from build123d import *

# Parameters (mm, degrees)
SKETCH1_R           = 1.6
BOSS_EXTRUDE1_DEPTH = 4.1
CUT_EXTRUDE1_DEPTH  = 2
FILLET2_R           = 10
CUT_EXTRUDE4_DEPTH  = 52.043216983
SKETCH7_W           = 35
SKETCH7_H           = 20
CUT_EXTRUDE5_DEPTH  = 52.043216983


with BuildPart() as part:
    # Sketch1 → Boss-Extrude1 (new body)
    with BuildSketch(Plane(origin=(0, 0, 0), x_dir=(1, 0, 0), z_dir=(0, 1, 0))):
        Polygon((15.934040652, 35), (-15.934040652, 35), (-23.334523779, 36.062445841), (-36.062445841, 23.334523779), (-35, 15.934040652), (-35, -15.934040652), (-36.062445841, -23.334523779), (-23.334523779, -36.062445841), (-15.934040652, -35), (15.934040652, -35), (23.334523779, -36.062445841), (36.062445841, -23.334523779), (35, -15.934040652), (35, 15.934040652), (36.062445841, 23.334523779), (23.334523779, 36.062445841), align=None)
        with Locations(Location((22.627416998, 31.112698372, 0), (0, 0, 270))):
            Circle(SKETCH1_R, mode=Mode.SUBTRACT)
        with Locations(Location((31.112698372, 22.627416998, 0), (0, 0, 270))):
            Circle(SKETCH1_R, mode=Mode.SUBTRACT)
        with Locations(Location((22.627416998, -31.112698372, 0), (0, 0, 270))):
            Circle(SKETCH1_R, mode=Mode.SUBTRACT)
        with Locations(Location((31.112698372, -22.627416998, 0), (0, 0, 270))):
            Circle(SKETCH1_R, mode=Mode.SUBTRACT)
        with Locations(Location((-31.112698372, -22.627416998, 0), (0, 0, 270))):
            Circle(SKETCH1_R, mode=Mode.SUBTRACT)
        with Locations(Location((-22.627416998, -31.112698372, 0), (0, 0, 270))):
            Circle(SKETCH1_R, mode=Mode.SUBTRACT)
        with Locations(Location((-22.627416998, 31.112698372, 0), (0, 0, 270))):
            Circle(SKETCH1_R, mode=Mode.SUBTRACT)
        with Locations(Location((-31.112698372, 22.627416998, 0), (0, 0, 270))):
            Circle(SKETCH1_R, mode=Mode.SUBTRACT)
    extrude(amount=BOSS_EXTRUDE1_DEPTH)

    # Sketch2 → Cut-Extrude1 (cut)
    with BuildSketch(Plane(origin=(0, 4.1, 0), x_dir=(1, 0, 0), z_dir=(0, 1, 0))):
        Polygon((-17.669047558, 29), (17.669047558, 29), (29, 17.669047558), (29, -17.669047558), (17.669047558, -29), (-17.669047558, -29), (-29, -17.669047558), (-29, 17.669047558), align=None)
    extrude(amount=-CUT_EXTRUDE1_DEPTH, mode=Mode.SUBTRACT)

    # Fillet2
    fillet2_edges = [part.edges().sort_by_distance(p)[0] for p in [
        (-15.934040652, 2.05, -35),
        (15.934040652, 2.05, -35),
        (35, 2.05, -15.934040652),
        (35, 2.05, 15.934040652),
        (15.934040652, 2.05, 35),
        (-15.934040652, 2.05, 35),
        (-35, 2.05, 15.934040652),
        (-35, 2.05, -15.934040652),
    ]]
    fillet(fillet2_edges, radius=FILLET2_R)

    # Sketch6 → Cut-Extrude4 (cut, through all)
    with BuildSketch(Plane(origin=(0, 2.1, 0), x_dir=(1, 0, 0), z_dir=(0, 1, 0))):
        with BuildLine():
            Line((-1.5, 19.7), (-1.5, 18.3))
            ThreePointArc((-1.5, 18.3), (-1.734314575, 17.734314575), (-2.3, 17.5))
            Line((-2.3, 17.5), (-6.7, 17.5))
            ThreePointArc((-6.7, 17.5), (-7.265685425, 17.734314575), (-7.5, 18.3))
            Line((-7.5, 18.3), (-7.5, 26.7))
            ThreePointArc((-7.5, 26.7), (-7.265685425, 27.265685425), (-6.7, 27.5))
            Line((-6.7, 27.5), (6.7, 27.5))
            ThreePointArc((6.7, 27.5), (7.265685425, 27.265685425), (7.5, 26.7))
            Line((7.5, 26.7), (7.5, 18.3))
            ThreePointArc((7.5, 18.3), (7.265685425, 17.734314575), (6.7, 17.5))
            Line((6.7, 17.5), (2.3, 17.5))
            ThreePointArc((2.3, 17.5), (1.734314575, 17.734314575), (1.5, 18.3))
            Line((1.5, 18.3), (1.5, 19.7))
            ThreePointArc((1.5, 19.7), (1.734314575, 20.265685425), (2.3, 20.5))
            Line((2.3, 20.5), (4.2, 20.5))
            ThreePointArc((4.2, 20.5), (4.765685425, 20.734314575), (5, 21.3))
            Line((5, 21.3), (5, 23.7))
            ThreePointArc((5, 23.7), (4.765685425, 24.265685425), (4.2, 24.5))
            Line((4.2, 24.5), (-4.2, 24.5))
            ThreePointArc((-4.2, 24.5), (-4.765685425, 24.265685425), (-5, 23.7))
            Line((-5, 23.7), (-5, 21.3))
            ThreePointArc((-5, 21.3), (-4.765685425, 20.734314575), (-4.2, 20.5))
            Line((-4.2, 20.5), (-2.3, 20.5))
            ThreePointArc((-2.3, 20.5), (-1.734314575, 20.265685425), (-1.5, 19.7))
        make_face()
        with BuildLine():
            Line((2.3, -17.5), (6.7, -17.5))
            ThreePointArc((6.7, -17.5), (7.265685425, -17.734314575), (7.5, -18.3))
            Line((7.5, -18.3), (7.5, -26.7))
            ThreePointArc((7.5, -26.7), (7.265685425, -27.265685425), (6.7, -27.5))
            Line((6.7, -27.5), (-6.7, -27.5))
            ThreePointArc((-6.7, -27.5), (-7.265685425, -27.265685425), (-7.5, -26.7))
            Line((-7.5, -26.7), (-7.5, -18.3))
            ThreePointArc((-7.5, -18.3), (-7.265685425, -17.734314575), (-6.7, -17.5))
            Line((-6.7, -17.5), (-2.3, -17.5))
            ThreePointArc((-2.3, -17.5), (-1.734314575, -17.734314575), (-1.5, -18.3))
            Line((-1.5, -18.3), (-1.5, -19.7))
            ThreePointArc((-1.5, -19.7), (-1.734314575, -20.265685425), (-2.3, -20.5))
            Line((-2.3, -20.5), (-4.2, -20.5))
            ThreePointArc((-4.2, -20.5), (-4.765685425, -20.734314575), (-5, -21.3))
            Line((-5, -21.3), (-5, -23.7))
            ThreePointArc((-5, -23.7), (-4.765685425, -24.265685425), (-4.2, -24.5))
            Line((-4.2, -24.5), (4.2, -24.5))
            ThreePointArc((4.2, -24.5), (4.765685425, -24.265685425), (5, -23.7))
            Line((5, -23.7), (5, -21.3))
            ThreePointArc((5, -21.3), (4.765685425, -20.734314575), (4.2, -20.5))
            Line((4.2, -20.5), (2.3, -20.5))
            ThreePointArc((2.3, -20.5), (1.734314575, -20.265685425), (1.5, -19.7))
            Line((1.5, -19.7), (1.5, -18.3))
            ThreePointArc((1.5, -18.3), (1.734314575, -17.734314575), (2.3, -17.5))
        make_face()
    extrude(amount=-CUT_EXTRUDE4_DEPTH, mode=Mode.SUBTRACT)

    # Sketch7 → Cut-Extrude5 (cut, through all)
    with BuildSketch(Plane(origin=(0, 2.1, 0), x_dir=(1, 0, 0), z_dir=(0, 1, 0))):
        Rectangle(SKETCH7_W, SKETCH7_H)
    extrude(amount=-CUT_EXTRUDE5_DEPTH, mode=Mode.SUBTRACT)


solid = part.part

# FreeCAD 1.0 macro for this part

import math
import FreeCAD as App
import Part
import Sketcher
from FreeCAD import Vector


def edges_at(feature, points):
    """Names of the edges that pass closest to the given points."""
    edges = feature.Shape.Edges
    near = lambda p: min(range(len(edges)), key=lambda i: edges[i].distToShape(Part.Vertex(*p))[0])
    return sorted({f"Edge{near(p) + 1}" for p in points})


def add_polygon(sketch, points):
    """Adds a closed chain of lines whose ends are joined by coincident constraints."""
    first, n = sketch.GeometryCount, len(points)
    for a, b in zip(points, points[1:] + points[:1]):
        sketch.addGeometry(Part.LineSegment(App.Vector(*a, 0), App.Vector(*b, 0)), False)
    for i in range(n):
        sketch.addConstraint(Sketcher.Constraint("Coincident", first + i, 2, first + (i + 1) % n, 1))

doc = App.newDocument("Part")
params = doc.addObject("Spreadsheet::Sheet", "Params")
for row, (alias, value) in enumerate([
    ("sketch1_diameter", "3.2 mm"),
    ("sketch1_length", "18 mm"),
    ("pad1_length", "4.1 mm"),
    ("pocket1_length", "2 mm"),
    ("fillet_radius", "10 mm"),
    ("sketch3_radius", "0.8 mm"),
    ("sketch3_width", "1.9 mm"),
    ("sketch3_width2", "8.4 mm"),
    ("sketch3_width3", "4.4 mm"),
    ("sketch3_height", "1.4 mm"),
    ("sketch4_width", "35 mm"),
    ("sketch4_height", "20 mm"),
], start=1):
    params.set(f"A{row}", alias)
    params.set(f"B{row}", "=" + value)
    params.setAlias(f"B{row}", alias)

body = doc.addObject("PartDesign::Body", "Body")

sketch1 = doc.addObject("Sketcher::SketchObject", "Sketch")
body.addObject(sketch1)
sketch1.AttachmentSupport = (doc.XZ_Plane, [""])
sketch1.MapMode = "FlatFace"
add_polygon(sketch1, [(15.9, -35), (-15.9, -35), (-23.3, -36.1), (-36.1, -23.3), (-35, -15.9), (-35, 15.9), (-36.1, 23.3), (-23.3, 36.1), (-15.9, 35), (15.9, 35), (23.3, 36.1), (36.1, 23.3), (35, 15.9), (35, -15.9), (36.1, -23.3), (23.3, -36.1)])
sketch1.addGeometry(Part.Circle(Vector(-22.6, 31.1, 0), Vector(0, 0, 1), 1.6), False)
sketch1.addGeometry(Part.Circle(Vector(-31.1, 22.6, 0), Vector(0, 0, 1), 1.6), False)
sketch1.addGeometry(Part.Circle(Vector(22.6, 31.1, 0), Vector(0, 0, 1), 1.6), False)
sketch1.addGeometry(Part.Circle(Vector(31.1, 22.6, 0), Vector(0, 0, 1), 1.6), False)
sketch1.addGeometry(Part.Circle(Vector(-31.1, -22.6, 0), Vector(0, 0, 1), 1.6), False)
sketch1.addGeometry(Part.Circle(Vector(-22.6, -31.1, 0), Vector(0, 0, 1), 1.6), False)
sketch1.addGeometry(Part.Circle(Vector(31.1, -22.6, 0), Vector(0, 0, 1), 1.6), False)
sketch1.addGeometry(Part.Circle(Vector(22.6, -31.1, 0), Vector(0, 0, 1), 1.6), False)
sketch1.addConstraint([
    Sketcher.Constraint("Horizontal", 0),
    Sketcher.Constraint("Vertical", 4),
    Sketcher.Constraint("Horizontal", 8),
    Sketcher.Constraint("Vertical", 12),
    Sketcher.Constraint("Equal", 16, 17),
    Sketcher.Constraint("Equal", 17, 18),
    Sketcher.Constraint("Equal", 18, 19),
    Sketcher.Constraint("Equal", 19, 20),
    Sketcher.Constraint("Equal", 20, 21),
    Sketcher.Constraint("Equal", 21, 22),
    Sketcher.Constraint("Equal", 22, 23),
    Sketcher.Constraint("Symmetric", 19, 3, 20, 3, -1, 1),
    Sketcher.Constraint("Symmetric", 18, 3, 21, 3, -1, 1),
    Sketcher.Constraint("Symmetric", 17, 3, 22, 3, -1, 1),
    Sketcher.Constraint("Symmetric", 16, 3, 23, 3, -1, 1),
    Sketcher.Constraint("Symmetric", 0, 2, 8, 2, -1, 1),
    Sketcher.Constraint("Symmetric", 1, 2, 9, 2, -1, 1),
    Sketcher.Constraint("Symmetric", 2, 2, 10, 2, -1, 1),
    Sketcher.Constraint("Symmetric", 3, 2, 11, 2, -1, 1),
    Sketcher.Constraint("Symmetric", 5, 2, 13, 2, -1, 1),
    Sketcher.Constraint("Symmetric", 6, 2, 14, 2, -1, 1),
    Sketcher.Constraint("Symmetric", 16, 3, 18, 3, -2),
    Sketcher.Constraint("Symmetric", 17, 3, 19, 3, -2),
    Sketcher.Constraint("Symmetric", 6, 2, 9, 2, -2),
    Sketcher.Constraint("Symmetric", 5, 2, 10, 2, -2),
    Sketcher.Constraint("Perpendicular", 1, 5),
    Sketcher.Constraint("Perpendicular", 2, 6),
    Sketcher.Constraint("Perpendicular", 3, 7),
    Sketcher.Constraint("Perpendicular", 9, 13),
    Sketcher.Constraint("Perpendicular", 11, 15),
    Sketcher.Constraint("Horizontal", 4, 2, 11, 2),
    Sketcher.Constraint("Equal", 8, 4),
    Sketcher.Constraint("Equal", 1, 3),
    Sketcher.Constraint("Diameter", 16, 3.2),
    Sketcher.Constraint("Distance", 2, 18.0),
    Sketcher.Constraint("DistanceY", 0, 2, -1, 1, 35.0),
    Sketcher.Constraint("DistanceX", 0, 2, 0, 1, 31.868081),
    Sketcher.Constraint("DistanceY", -1, 1, 16, 3, 31.112698),
    Sketcher.Constraint("DistanceX", 17, 3, -1, 1, 31.112698),
    Sketcher.Constraint("Distance", 1, 7.476359),
    Sketcher.Constraint("DistanceX", 17, 3, 16, 3, 8.485281),
    Sketcher.Constraint("DistanceY", 17, 3, 16, 3, 8.485281),
])
sketch1.setExpression("Constraints[49]", "Params.sketch1_diameter")
sketch1.setExpression("Constraints[50]", "Params.sketch1_length")
pad1 = doc.addObject("PartDesign::Pad", "Pad")
body.addObject(pad1)
pad1.Profile = sketch1
pad1.setExpression("Length", "Params.pad1_length")
pad1.Reversed = True

sketch2 = doc.addObject("Sketcher::SketchObject", "Sketch001")
body.addObject(sketch2)
sketch2.AttachmentSupport = (doc.XZ_Plane, [""])
sketch2.MapMode = "FlatFace"
sketch2.AttachmentOffset = App.Placement(Vector(0, 0, -4.1), App.Rotation())
add_polygon(sketch2, [(18, -29), (-18, -29), (-29, -18), (-29, 18), (-18, 29), (18, 29), (29, 18), (29, -18)])
sketch2.addConstraint([
    Sketcher.Constraint("Horizontal", 0),
    Sketcher.Constraint("Vertical", 2),
    Sketcher.Constraint("Horizontal", 4),
    Sketcher.Constraint("Vertical", 6),
    Sketcher.Constraint("Symmetric", 0, 2, 4, 2, -1, 1),
    Sketcher.Constraint("Symmetric", 1, 2, 5, 2, -1, 1),
    Sketcher.Constraint("Perpendicular", 1, 3),
    Sketcher.Constraint("Perpendicular", 5, 7),
    Sketcher.Constraint("Horizontal", 2, 2, 5, 2),
    Sketcher.Constraint("Horizontal", 1, 2, 6, 2),
    Sketcher.Constraint("Vertical", 0, 2, 3, 2),
    Sketcher.Constraint("Equal", 4, 2),
    Sketcher.Constraint("DistanceY", 0, 2, -1, 1, 29.0),
    Sketcher.Constraint("DistanceX", 0, 2, 0, 1, 35.338095),
])
pocket1 = doc.addObject("PartDesign::Pocket", "Pocket")
body.addObject(pocket1)
pocket1.Profile = sketch2
pocket1.setExpression("Length", "Params.pocket1_length")
pocket1.Reversed = True
doc.recompute()

fillet = doc.addObject("PartDesign::Fillet", "Fillet")
body.addObject(fillet)
fillet.Base = (pocket1, edges_at(pocket1, [
    (-15.934, 2.05, -35),
    (15.934, 2.05, -35),
    (35, 2.05, -15.934),
    (35, 2.05, 15.934),
    (15.934, 2.05, 35),
    (-15.934, 2.05, 35),
    (-35, 2.05, 15.934),
    (-35, 2.05, -15.934),
]))
fillet.setExpression("Radius", "Params.fillet_radius")

sketch3 = doc.addObject("Sketcher::SketchObject", "Sketch002")
body.addObject(sketch3)
sketch3.AttachmentSupport = (doc.XZ_Plane, [""])
sketch3.MapMode = "FlatFace"
sketch3.AttachmentOffset = App.Placement(Vector(0, 0, -2.1), App.Rotation())
sketch3.addGeometry([
    Part.LineSegment(Vector(-1.5, -18.3, 0), Vector(-1.5, -19.7, 0)),
    Part.ArcOfCircle(Part.Circle(Vector(-2.3, -19.7, 0), Vector(0, 0, 1), 0.8), math.radians(-90), math.radians(0)),
    Part.LineSegment(Vector(-2.3, -20.5, 0), Vector(-4.2, -20.5, 0)),
    Part.ArcOfCircle(Part.Circle(Vector(-4.2, -21.3, 0), Vector(0, 0, 1), 0.8), math.radians(90), math.radians(180)),
    Part.LineSegment(Vector(-5, -21.3, 0), Vector(-5, -23.7, 0)),
    Part.ArcOfCircle(Part.Circle(Vector(-4.2, -23.7, 0), Vector(0, 0, 1), 0.8), math.radians(180), math.radians(270)),
    Part.LineSegment(Vector(-4.2, -24.5, 0), Vector(4.2, -24.5, 0)),
    Part.ArcOfCircle(Part.Circle(Vector(4.2, -23.7, 0), Vector(0, 0, 1), 0.8), math.radians(-90), math.radians(0)),
    Part.LineSegment(Vector(5, -23.7, 0), Vector(5, -21.3, 0)),
    Part.ArcOfCircle(Part.Circle(Vector(4.2, -21.3, 0), Vector(0, 0, 1), 0.8), math.radians(0), math.radians(90)),
    Part.LineSegment(Vector(4.2, -20.5, 0), Vector(2.3, -20.5, 0)),
    Part.ArcOfCircle(Part.Circle(Vector(2.3, -19.7, 0), Vector(0, 0, 1), 0.8), math.radians(180), math.radians(270)),
    Part.LineSegment(Vector(1.5, -19.7, 0), Vector(1.5, -18.3, 0)),
    Part.ArcOfCircle(Part.Circle(Vector(2.3, -18.3, 0), Vector(0, 0, 1), 0.8), math.radians(90), math.radians(180)),
    Part.LineSegment(Vector(2.3, -17.5, 0), Vector(6.7, -17.5, 0)),
    Part.ArcOfCircle(Part.Circle(Vector(6.7, -18.3, 0), Vector(0, 0, 1), 0.8), math.radians(0), math.radians(90)),
    Part.LineSegment(Vector(7.5, -18.3, 0), Vector(7.5, -26.7, 0)),
    Part.ArcOfCircle(Part.Circle(Vector(6.7, -26.7, 0), Vector(0, 0, 1), 0.8), math.radians(-90), math.radians(0)),
    Part.LineSegment(Vector(6.7, -27.5, 0), Vector(-6.7, -27.5, 0)),
    Part.ArcOfCircle(Part.Circle(Vector(-6.7, -26.7, 0), Vector(0, 0, 1), 0.8), math.radians(180), math.radians(270)),
    Part.LineSegment(Vector(-7.5, -26.7, 0), Vector(-7.5, -18.3, 0)),
    Part.ArcOfCircle(Part.Circle(Vector(-6.7, -18.3, 0), Vector(0, 0, 1), 0.8), math.radians(90), math.radians(180)),
    Part.LineSegment(Vector(-6.7, -17.5, 0), Vector(-2.3, -17.5, 0)),
    Part.ArcOfCircle(Part.Circle(Vector(-2.3, -18.3, 0), Vector(0, 0, 1), 0.8), math.radians(0), math.radians(90)),
    Part.LineSegment(Vector(6.7, 17.5, 0), Vector(2.3, 17.5, 0)),
    Part.ArcOfCircle(Part.Circle(Vector(2.3, 18.3, 0), Vector(0, 0, 1), 0.8), math.radians(180), math.radians(270)),
    Part.LineSegment(Vector(1.5, 18.3, 0), Vector(1.5, 19.7, 0)),
    Part.ArcOfCircle(Part.Circle(Vector(2.3, 19.7, 0), Vector(0, 0, 1), 0.8), math.radians(90), math.radians(180)),
    Part.LineSegment(Vector(2.3, 20.5, 0), Vector(4.2, 20.5, 0)),
    Part.ArcOfCircle(Part.Circle(Vector(4.2, 21.3, 0), Vector(0, 0, 1), 0.8), math.radians(-90), math.radians(0)),
    Part.LineSegment(Vector(5, 21.3, 0), Vector(5, 23.7, 0)),
    Part.ArcOfCircle(Part.Circle(Vector(4.2, 23.7, 0), Vector(0, 0, 1), 0.8), math.radians(0), math.radians(90)),
    Part.LineSegment(Vector(4.2, 24.5, 0), Vector(-4.2, 24.5, 0)),
    Part.ArcOfCircle(Part.Circle(Vector(-4.2, 23.7, 0), Vector(0, 0, 1), 0.8), math.radians(90), math.radians(180)),
    Part.LineSegment(Vector(-5, 23.7, 0), Vector(-5, 21.3, 0)),
    Part.ArcOfCircle(Part.Circle(Vector(-4.2, 21.3, 0), Vector(0, 0, 1), 0.8), math.radians(180), math.radians(270)),
    Part.LineSegment(Vector(-4.2, 20.5, 0), Vector(-2.3, 20.5, 0)),
    Part.ArcOfCircle(Part.Circle(Vector(-2.3, 19.7, 0), Vector(0, 0, 1), 0.8), math.radians(0), math.radians(90)),
    Part.LineSegment(Vector(-1.5, 19.7, 0), Vector(-1.5, 18.3, 0)),
    Part.ArcOfCircle(Part.Circle(Vector(-2.3, 18.3, 0), Vector(0, 0, 1), 0.8), math.radians(-90), math.radians(0)),
    Part.LineSegment(Vector(-2.3, 17.5, 0), Vector(-6.7, 17.5, 0)),
    Part.ArcOfCircle(Part.Circle(Vector(-6.7, 18.3, 0), Vector(0, 0, 1), 0.8), math.radians(180), math.radians(270)),
    Part.LineSegment(Vector(-7.5, 18.3, 0), Vector(-7.5, 26.7, 0)),
    Part.ArcOfCircle(Part.Circle(Vector(-6.7, 26.7, 0), Vector(0, 0, 1), 0.8), math.radians(90), math.radians(180)),
    Part.LineSegment(Vector(-6.7, 27.5, 0), Vector(6.7, 27.5, 0)),
    Part.ArcOfCircle(Part.Circle(Vector(6.7, 26.7, 0), Vector(0, 0, 1), 0.8), math.radians(0), math.radians(90)),
    Part.LineSegment(Vector(7.5, 26.7, 0), Vector(7.5, 18.3, 0)),
    Part.ArcOfCircle(Part.Circle(Vector(6.7, 18.3, 0), Vector(0, 0, 1), 0.8), math.radians(-90), math.radians(0)),
], False)
sketch3.addConstraint([
    Sketcher.Constraint("Tangent", 0, 2, 1, 2),
    Sketcher.Constraint("Tangent", 1, 1, 2, 1),
    Sketcher.Constraint("Tangent", 2, 2, 3, 1),
    Sketcher.Constraint("Tangent", 3, 2, 4, 1),
    Sketcher.Constraint("Tangent", 4, 2, 5, 1),
    Sketcher.Constraint("Tangent", 5, 2, 6, 1),
    Sketcher.Constraint("Tangent", 6, 2, 7, 1),
    Sketcher.Constraint("Tangent", 7, 2, 8, 1),
    Sketcher.Constraint("Tangent", 8, 2, 9, 1),
    Sketcher.Constraint("Tangent", 9, 2, 10, 1),
    Sketcher.Constraint("Tangent", 10, 2, 11, 2),
    Sketcher.Constraint("Tangent", 11, 1, 12, 1),
    Sketcher.Constraint("Tangent", 12, 2, 13, 2),
    Sketcher.Constraint("Tangent", 13, 1, 14, 1),
    Sketcher.Constraint("Tangent", 14, 2, 15, 2),
    Sketcher.Constraint("Tangent", 15, 1, 16, 1),
    Sketcher.Constraint("Tangent", 16, 2, 17, 2),
    Sketcher.Constraint("Tangent", 17, 1, 18, 1),
    Sketcher.Constraint("Tangent", 18, 2, 19, 2),
    Sketcher.Constraint("Tangent", 19, 1, 20, 1),
    Sketcher.Constraint("Tangent", 20, 2, 21, 2),
    Sketcher.Constraint("Tangent", 21, 1, 22, 1),
    Sketcher.Constraint("Tangent", 22, 2, 23, 2),
    Sketcher.Constraint("Tangent", 23, 1, 0, 1),
    Sketcher.Constraint("Tangent", 24, 2, 25, 2),
    Sketcher.Constraint("Tangent", 25, 1, 26, 1),
    Sketcher.Constraint("Tangent", 26, 2, 27, 2),
    Sketcher.Constraint("Tangent", 27, 1, 28, 1),
    Sketcher.Constraint("Tangent", 28, 2, 29, 1),
    Sketcher.Constraint("Tangent", 29, 2, 30, 1),
    Sketcher.Constraint("Tangent", 30, 2, 31, 1),
    Sketcher.Constraint("Tangent", 31, 2, 32, 1),
    Sketcher.Constraint("Tangent", 32, 2, 33, 1),
    Sketcher.Constraint("Tangent", 33, 2, 34, 1),
    Sketcher.Constraint("Tangent", 34, 2, 35, 1),
    Sketcher.Constraint("Tangent", 35, 2, 36, 1),
    Sketcher.Constraint("Tangent", 36, 2, 37, 2),
    Sketcher.Constraint("Tangent", 37, 1, 38, 1),
    Sketcher.Constraint("Tangent", 38, 2, 39, 2),
    Sketcher.Constraint("Tangent", 39, 1, 40, 1),
    Sketcher.Constraint("Tangent", 40, 2, 41, 2),
    Sketcher.Constraint("Tangent", 41, 1, 42, 1),
    Sketcher.Constraint("Tangent", 42, 2, 43, 2),
    Sketcher.Constraint("Tangent", 43, 1, 44, 1),
    Sketcher.Constraint("Tangent", 44, 2, 45, 2),
    Sketcher.Constraint("Tangent", 45, 1, 46, 1),
    Sketcher.Constraint("Tangent", 46, 2, 47, 2),
    Sketcher.Constraint("Tangent", 47, 1, 24, 1),
    Sketcher.Constraint("Vertical", 0),
    Sketcher.Constraint("Horizontal", 2),
    Sketcher.Constraint("Vertical", 4),
    Sketcher.Constraint("Horizontal", 6),
    Sketcher.Constraint("Vertical", 8),
    Sketcher.Constraint("Horizontal", 10),
    Sketcher.Constraint("Vertical", 12),
    Sketcher.Constraint("Horizontal", 14),
    Sketcher.Constraint("Vertical", 16),
    Sketcher.Constraint("Horizontal", 18),
    Sketcher.Constraint("Vertical", 20),
    Sketcher.Constraint("Horizontal", 22),
    Sketcher.Constraint("Horizontal", 24),
    Sketcher.Constraint("Vertical", 26),
    Sketcher.Constraint("Horizontal", 28),
    Sketcher.Constraint("Vertical", 30),
    Sketcher.Constraint("Horizontal", 32),
    Sketcher.Constraint("Vertical", 34),
    Sketcher.Constraint("Horizontal", 36),
    Sketcher.Constraint("Vertical", 38),
    Sketcher.Constraint("Horizontal", 40),
    Sketcher.Constraint("Vertical", 42),
    Sketcher.Constraint("Horizontal", 44),
    Sketcher.Constraint("Vertical", 46),
    Sketcher.Constraint("Equal", 1, 3),
    Sketcher.Constraint("Equal", 3, 5),
    Sketcher.Constraint("Equal", 5, 7),
    Sketcher.Constraint("Equal", 7, 9),
    Sketcher.Constraint("Equal", 9, 11),
    Sketcher.Constraint("Equal", 11, 13),
    Sketcher.Constraint("Equal", 13, 15),
    Sketcher.Constraint("Equal", 15, 17),
    Sketcher.Constraint("Equal", 17, 19),
    Sketcher.Constraint("Equal", 19, 21),
    Sketcher.Constraint("Equal", 21, 23),
    Sketcher.Constraint("Equal", 23, 25),
    Sketcher.Constraint("Equal", 25, 27),
    Sketcher.Constraint("Equal", 27, 29),
    Sketcher.Constraint("Equal", 29, 31),
    Sketcher.Constraint("Equal", 31, 33),
    Sketcher.Constraint("Equal", 33, 35),
    Sketcher.Constraint("Equal", 35, 37),
    Sketcher.Constraint("Equal", 37, 39),
    Sketcher.Constraint("Equal", 39, 41),
    Sketcher.Constraint("Equal", 41, 43),
    Sketcher.Constraint("Equal", 43, 45),
    Sketcher.Constraint("Equal", 45, 47),
    Sketcher.Constraint("Symmetric", 23, 3, 25, 3, -1, 1),
    Sketcher.Constraint("Symmetric", 3, 3, 29, 3, -1, 1),
    Sketcher.Constraint("Symmetric", 7, 3, 33, 3, -1, 1),
    Sketcher.Constraint("Symmetric", 11, 3, 37, 3, -1, 1),
    Sketcher.Constraint("Symmetric", 15, 3, 41, 3, -1, 1),
    Sketcher.Constraint("Symmetric", 19, 3, 45, 3, -1, 1),
    Sketcher.Constraint("Symmetric", 3, 3, 9, 3, -2),
    Sketcher.Constraint("Symmetric", 15, 3, 21, 3, -2),
    Sketcher.Constraint("Vertical", 13, 3, 25, 3),
    Sketcher.Constraint("Equal", 32, 16),
    Sketcher.Constraint("Radius", 1, 0.8),
    Sketcher.Constraint("DistanceX", 2, 2, 2, 1, 1.9),
    Sketcher.Constraint("DistanceX", 6, 1, 6, 2, 8.4),
    Sketcher.Constraint("DistanceX", 14, 1, 14, 2, 4.4),
    Sketcher.Constraint("DistanceY", 0, 2, 0, 1, 1.4),
    Sketcher.Constraint("DistanceY", 4, 2, 4, 1, 2.4),
    Sketcher.Constraint("DistanceY", 1, 3, -1, 1, 19.7),
])
sketch3.setExpression("Constraints[105]", "Params.sketch3_radius")
sketch3.setExpression("Constraints[106]", "Params.sketch3_width")
sketch3.setExpression("Constraints[107]", "Params.sketch3_width2")
sketch3.setExpression("Constraints[108]", "Params.sketch3_width3")
sketch3.setExpression("Constraints[109]", "Params.sketch3_height")
pocket2 = doc.addObject("PartDesign::Pocket", "Pocket001")
body.addObject(pocket2)
pocket2.Profile = sketch3
pocket2.Type = "ThroughAll"
pocket2.Reversed = True

sketch4 = doc.addObject("Sketcher::SketchObject", "Sketch003")
body.addObject(sketch4)
sketch4.AttachmentSupport = (doc.XZ_Plane, [""])
sketch4.MapMode = "FlatFace"
sketch4.AttachmentOffset = App.Placement(Vector(0, 0, -2.1), App.Rotation())
add_polygon(sketch4, [(-18, -10), (-18, 10), (18, 10), (18, -10)])
sketch4.addConstraint([
    Sketcher.Constraint("Vertical", 0),
    Sketcher.Constraint("Horizontal", 1),
    Sketcher.Constraint("Vertical", 2),
    Sketcher.Constraint("Horizontal", 3),
    Sketcher.Constraint("Symmetric", 0, 2, 2, 2, -1, 1),
    Sketcher.Constraint("DistanceX", 1, 1, 1, 2, 35.0),
    Sketcher.Constraint("DistanceY", 0, 1, 0, 2, 20.0),
])
sketch4.setExpression("Constraints[9]", "Params.sketch4_width")
sketch4.setExpression("Constraints[10]", "Params.sketch4_height")
pocket3 = doc.addObject("PartDesign::Pocket", "Pocket002")
body.addObject(pocket3)
pocket3.Profile = sketch4
pocket3.Type = "ThroughAll"
pocket3.Reversed = True

doc.recompute()
